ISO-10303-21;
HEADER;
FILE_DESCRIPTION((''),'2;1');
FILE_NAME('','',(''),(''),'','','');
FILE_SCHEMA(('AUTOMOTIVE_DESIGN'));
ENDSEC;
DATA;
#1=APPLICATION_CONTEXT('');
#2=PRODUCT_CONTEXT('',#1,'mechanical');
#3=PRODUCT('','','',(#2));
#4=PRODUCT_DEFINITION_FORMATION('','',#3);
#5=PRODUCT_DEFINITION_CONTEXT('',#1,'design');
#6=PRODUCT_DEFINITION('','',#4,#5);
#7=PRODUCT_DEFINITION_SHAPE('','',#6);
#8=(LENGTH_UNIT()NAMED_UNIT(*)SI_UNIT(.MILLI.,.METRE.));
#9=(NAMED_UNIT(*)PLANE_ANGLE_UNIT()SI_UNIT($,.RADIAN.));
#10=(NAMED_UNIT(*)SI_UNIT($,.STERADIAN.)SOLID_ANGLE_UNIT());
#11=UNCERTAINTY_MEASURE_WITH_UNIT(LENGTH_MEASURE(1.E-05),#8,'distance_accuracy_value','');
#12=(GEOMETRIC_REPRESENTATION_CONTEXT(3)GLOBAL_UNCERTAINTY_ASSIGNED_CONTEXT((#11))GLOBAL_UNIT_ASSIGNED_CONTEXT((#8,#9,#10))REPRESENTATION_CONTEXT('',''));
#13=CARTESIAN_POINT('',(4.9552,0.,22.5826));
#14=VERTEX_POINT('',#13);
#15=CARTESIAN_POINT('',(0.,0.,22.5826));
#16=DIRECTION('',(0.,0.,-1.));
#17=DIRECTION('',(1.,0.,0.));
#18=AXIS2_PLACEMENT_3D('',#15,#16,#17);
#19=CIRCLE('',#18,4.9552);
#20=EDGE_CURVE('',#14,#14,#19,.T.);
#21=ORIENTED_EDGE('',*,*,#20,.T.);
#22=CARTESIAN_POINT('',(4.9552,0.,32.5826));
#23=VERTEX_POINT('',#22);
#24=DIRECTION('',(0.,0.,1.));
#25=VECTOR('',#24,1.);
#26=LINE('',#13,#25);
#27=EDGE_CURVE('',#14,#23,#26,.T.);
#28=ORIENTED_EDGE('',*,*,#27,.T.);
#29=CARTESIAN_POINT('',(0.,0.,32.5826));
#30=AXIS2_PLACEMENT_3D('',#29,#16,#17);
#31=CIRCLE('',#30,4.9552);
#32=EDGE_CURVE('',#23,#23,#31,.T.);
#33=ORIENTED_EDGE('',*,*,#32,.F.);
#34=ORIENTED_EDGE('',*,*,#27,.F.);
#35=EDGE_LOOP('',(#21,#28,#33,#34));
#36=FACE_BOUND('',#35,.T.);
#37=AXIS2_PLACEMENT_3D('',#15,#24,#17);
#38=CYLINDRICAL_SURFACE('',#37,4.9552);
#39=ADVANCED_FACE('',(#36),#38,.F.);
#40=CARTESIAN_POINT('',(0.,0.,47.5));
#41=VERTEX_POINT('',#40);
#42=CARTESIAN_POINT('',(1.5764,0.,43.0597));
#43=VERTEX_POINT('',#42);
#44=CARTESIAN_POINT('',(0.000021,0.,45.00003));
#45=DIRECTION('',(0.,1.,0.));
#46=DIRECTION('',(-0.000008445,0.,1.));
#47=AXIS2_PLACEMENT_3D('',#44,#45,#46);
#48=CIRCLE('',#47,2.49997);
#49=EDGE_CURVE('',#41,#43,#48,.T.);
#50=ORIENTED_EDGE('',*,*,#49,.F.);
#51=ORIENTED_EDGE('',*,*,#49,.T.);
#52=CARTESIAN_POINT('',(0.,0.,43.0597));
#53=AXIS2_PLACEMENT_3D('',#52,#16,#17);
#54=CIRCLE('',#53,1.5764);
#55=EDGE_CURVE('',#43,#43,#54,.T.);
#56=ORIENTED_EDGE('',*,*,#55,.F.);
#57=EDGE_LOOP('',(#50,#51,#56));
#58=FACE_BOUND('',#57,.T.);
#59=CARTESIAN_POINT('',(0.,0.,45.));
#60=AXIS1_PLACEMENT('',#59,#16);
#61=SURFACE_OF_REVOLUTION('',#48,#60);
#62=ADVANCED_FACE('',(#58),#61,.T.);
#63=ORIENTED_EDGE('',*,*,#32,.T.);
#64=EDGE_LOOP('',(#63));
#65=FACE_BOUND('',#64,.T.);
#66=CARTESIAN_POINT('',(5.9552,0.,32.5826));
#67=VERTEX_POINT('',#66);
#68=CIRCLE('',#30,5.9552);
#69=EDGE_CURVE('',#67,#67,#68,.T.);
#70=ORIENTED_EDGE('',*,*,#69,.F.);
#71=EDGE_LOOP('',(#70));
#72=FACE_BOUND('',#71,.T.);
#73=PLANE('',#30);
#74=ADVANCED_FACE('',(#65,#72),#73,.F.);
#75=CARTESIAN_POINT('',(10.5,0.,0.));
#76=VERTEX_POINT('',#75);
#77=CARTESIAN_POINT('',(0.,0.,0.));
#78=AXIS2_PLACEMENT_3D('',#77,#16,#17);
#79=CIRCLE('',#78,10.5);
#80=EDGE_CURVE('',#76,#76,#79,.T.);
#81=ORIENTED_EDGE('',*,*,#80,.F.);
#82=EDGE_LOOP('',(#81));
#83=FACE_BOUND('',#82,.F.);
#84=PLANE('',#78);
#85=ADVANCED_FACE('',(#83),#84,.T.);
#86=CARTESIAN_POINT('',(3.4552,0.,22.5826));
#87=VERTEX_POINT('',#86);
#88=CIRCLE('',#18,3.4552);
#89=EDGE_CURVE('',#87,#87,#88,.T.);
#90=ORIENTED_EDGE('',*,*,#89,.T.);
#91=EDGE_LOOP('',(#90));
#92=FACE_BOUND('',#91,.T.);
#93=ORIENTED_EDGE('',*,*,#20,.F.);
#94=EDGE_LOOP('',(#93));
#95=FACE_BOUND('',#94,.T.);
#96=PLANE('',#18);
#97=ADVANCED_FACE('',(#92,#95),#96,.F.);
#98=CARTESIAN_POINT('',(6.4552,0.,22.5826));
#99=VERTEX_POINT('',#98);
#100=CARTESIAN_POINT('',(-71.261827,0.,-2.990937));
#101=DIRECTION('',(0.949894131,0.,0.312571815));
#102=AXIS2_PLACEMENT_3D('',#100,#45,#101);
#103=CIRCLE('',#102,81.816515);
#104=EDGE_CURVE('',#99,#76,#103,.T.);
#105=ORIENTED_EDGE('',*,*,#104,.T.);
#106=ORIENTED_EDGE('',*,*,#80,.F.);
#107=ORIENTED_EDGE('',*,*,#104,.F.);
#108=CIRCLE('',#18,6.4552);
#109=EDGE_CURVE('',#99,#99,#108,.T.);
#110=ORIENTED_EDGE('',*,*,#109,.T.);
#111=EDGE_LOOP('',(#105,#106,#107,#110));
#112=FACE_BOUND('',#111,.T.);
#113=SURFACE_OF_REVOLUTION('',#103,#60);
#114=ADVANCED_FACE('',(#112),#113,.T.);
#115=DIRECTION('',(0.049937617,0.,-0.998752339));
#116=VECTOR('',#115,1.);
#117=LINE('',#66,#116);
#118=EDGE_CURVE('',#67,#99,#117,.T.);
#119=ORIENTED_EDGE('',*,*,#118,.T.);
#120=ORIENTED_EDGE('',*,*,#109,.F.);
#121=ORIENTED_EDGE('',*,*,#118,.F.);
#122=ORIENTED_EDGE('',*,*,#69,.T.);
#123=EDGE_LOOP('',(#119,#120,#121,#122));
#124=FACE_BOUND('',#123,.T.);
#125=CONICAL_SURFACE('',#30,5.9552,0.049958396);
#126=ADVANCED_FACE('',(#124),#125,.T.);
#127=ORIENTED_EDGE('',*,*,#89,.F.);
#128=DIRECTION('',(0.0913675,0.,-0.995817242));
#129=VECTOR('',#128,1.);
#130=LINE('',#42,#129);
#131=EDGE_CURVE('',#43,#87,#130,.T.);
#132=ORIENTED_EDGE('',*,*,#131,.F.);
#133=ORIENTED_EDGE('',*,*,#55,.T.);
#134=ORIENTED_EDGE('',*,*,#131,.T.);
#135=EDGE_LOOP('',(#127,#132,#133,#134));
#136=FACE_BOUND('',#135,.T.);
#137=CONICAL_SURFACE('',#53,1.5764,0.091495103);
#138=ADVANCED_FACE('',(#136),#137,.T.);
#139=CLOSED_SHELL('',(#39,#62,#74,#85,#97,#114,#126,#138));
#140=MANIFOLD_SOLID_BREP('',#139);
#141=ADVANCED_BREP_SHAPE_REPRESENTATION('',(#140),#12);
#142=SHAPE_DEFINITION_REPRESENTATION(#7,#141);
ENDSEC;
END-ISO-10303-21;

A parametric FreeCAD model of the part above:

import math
import FreeCAD as App
import Part
import Sketcher
from FreeCAD import Vector
Q = App.Units.Quantity

doc = App.newDocument("Part")
body = doc.addObject("PartDesign::Body", "Body")

sketch1 = body.newObject("Sketcher::SketchObject", "Sketch")
sketch1.AttachmentSupport = (doc.getObject("XZ_Plane"), [""])
sketch1.MapMode = "FlatFace"
sketch1.addGeometry([
    Part.LineSegment(Vector(10.5, 0, 0), Vector(0, 0, 0)),
    Part.LineSegment(Vector(0, 0, 0), Vector(0, 47.5, 0)),
    Part.ArcOfCircle(Part.Circle(Vector(0, 45, 0), Vector(0, 0, 1), 2.5), math.radians(-51), math.radians(90)),
    Part.LineSegment(Vector(1.6, 43.1, 0), Vector(3.5, 22.6, 0)),
    Part.LineSegment(Vector(3.5, 22.6, 0), Vector(5, 22.6, 0)),
    Part.LineSegment(Vector(5, 22.6, 0), Vector(5, 32.6, 0)),
    Part.LineSegment(Vector(5, 32.6, 0), Vector(6, 32.6, 0)),
    Part.LineSegment(Vector(6, 32.6, 0), Vector(6.5, 22.6, 0)),
    Part.ArcOfCircle(Part.Circle(Vector(-71.3, -3, 0), Vector(0, 0, 1), 81.8), math.radians(2.1), math.radians(18.21)),
], False)
sketch1.addConstraint([
    Sketcher.Constraint("Coincident", 0, 2, 1, 1),
    Sketcher.Constraint("Coincident", 1, 2, 2, 2),
    Sketcher.Constraint("Coincident", 2, 1, 3, 1),
    Sketcher.Constraint("Coincident", 3, 2, 4, 1),
    Sketcher.Constraint("Coincident", 4, 2, 5, 1),
    Sketcher.Constraint("Coincident", 5, 2, 6, 1),
    Sketcher.Constraint("Coincident", 6, 2, 7, 1),
    Sketcher.Constraint("Coincident", 7, 2, 8, 2),
    Sketcher.Constraint("Coincident", 8, 1, 0, 1),
    Sketcher.Constraint("Horizontal", 0),
    Sketcher.Constraint("Vertical", 1),
    Sketcher.Constraint("Horizontal", 4),
    Sketcher.Constraint("Vertical", 5),
    Sketcher.Constraint("Horizontal", 6),
    Sketcher.Constraint("Coincident", 0, 2, -1, 1),
    Sketcher.Constraint("PointOnObject", 2, 3, -2),
    Sketcher.Constraint("Horizontal", 4, 2, 7, 2),
    Sketcher.Constraint("DistanceX", 6, 1, 6, 2, Q("1 mm")),
    Sketcher.Constraint("DistanceX", 0, 2, 0, 1, Q("10.5 mm")),
    Sketcher.Constraint("DistanceX", 4, 1, 4, 2, Q("1.5 mm")),
    Sketcher.Constraint("Radius", 2, Q("2.5 mm")),
    Sketcher.Constraint("DistanceX", 4, 2, 7, 2, Q("1.5 mm")),
    Sketcher.Constraint("DistanceY", 5, 1, 5, 2, Q("10 mm")),
    Sketcher.Constraint("DistanceY", 1, 1, 1, 2, Q("47.5 mm")),
    Sketcher.Constraint("Radius", 8, Q("81.8165 mm")),
    Sketcher.Constraint("Distance", 3, Q("20.563 mm")),
    Sketcher.Constraint("DistanceY", 8, 3, -1, 1, Q("2.991 mm")),
    Sketcher.Constraint("DistanceY", 3, 2, 2, 1, Q("20.477 mm")),
])
revolution = body.newObject("PartDesign::Revolution", "Revolution")
revolution.Profile = sketch1
revolution.ReferenceAxis = (sketch1, ["V_Axis"])
revolution.Angle = 360

doc.recompute()
